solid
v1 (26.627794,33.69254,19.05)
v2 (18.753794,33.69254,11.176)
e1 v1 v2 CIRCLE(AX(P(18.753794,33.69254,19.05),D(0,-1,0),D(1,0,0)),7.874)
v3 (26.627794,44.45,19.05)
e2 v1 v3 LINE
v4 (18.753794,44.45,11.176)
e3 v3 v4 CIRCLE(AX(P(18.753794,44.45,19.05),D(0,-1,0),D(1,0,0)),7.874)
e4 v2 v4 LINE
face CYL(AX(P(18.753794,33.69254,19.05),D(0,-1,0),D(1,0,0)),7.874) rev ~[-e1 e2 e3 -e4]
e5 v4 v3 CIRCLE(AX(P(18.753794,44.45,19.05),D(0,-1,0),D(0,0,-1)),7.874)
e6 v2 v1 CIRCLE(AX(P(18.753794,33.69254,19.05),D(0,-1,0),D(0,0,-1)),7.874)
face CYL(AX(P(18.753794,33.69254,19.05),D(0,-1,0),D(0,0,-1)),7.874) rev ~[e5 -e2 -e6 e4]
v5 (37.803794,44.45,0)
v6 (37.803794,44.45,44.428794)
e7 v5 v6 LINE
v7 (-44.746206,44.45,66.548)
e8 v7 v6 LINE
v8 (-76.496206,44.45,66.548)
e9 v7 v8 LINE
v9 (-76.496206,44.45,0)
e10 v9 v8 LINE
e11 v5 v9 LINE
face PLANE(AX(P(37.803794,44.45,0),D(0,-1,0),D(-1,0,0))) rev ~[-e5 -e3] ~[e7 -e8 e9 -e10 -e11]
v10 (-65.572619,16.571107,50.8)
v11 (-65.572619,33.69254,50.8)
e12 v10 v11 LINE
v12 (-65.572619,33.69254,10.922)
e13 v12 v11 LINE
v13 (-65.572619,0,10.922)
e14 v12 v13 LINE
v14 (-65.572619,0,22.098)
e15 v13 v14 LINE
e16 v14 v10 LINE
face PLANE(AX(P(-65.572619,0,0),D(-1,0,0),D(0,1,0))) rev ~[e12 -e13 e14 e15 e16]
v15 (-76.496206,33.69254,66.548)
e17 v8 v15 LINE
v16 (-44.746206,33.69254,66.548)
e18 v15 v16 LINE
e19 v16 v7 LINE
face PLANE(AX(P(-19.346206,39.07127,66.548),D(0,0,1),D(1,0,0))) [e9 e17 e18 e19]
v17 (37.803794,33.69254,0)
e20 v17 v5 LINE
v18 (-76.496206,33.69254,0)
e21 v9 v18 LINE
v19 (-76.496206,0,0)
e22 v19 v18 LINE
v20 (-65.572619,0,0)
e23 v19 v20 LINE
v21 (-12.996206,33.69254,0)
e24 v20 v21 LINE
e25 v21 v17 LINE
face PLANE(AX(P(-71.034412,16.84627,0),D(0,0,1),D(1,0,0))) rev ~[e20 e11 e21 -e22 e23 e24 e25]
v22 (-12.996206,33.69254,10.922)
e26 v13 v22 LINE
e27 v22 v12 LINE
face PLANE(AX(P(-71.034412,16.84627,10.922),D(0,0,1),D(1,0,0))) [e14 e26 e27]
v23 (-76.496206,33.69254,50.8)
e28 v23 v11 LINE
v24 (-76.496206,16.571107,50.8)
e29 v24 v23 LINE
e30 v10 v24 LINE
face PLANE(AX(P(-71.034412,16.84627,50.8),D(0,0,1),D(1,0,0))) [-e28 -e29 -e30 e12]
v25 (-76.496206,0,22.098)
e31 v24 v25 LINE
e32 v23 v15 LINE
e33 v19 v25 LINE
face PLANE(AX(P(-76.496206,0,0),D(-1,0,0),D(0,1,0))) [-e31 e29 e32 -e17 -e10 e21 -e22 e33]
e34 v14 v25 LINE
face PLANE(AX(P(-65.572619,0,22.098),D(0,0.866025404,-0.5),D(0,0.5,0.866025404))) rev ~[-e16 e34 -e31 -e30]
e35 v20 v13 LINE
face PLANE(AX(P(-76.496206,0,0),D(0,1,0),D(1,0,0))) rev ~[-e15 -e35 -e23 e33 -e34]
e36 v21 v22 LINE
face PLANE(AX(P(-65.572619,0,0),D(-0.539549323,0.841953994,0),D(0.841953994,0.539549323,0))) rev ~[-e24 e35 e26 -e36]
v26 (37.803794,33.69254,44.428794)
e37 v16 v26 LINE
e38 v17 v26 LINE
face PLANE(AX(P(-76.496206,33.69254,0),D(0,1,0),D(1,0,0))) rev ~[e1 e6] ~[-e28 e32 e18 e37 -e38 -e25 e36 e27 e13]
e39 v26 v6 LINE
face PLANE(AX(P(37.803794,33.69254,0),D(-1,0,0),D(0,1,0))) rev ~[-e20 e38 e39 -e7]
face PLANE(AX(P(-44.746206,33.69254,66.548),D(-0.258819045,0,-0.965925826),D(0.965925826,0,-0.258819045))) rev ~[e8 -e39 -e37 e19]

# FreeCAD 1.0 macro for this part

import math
import FreeCAD as App
import Part
import Sketcher

V = App.Vector
Q = App.Units.Quantity


def add_polygon(sketch, points):
    """Adds a closed chain of lines whose ends are joined by coincident constraints."""
    first, n = sketch.GeometryCount, len(points)
    for a, b in zip(points, points[1:] + points[:1]):
        sketch.addGeometry(Part.LineSegment(App.Vector(*a, 0), App.Vector(*b, 0)), False)
    for i in range(n):
        sketch.addConstraint(Sketcher.Constraint("Coincident", first + i, 2, first + (i + 1) % n, 1))

doc = App.newDocument("Part")
params = doc.addObject("Spreadsheet::Sheet", "Params")
for row, (alias, value) in enumerate([
    ("sketch1_width", "4.5 in"),
    ("pad1_length", "2.62 in"),
    ("sketch2_width", "2.5 in"),
    ("pad2_length", "0.43 in"),
    ("sketch3_radius", "0.31 in"),
    ("pad3_length", "2 in"),
    ("sketch5_height", "1.13 in"),
    ("pocket2_length", "5 in"),
    ("sketch6_width", "3.25 in"),
    ("pocket3_length", "5 in"),
], start=1):
    params.set(f"A{row}", alias)
    params.set(f"B{row}", "=" + value)
    params.setAlias(f"B{row}", alias)

body = doc.addObject("PartDesign::Body", "Body")

sketch1 = body.newObject("Sketcher::SketchObject", "Sketch")
sketch1.AttachmentSupport = (doc.getObject("XY_Plane"), [""])
sketch1.MapMode = "FlatFace"
add_polygon(sketch1, [(38, 44), (-76, 44), (-76, 34), (38, 34)])
sketch1.addConstraint(Sketcher.Constraint("Horizontal", 0))
sketch1.addConstraint(Sketcher.Constraint("Vertical", 1))
sketch1.addConstraint(Sketcher.Constraint("Horizontal", 2))
sketch1.addConstraint(Sketcher.Constraint("Vertical", 3))
sketch1.addConstraint(Sketcher.Constraint("DistanceX", 0, 2, 0, 1, Q("4.5 in")))
sketch1.addConstraint(Sketcher.Constraint("DistanceY", -1, 1, 0, 2, Q("1.75 in")))
sketch1.addConstraint(Sketcher.Constraint("DistanceY", 1, 2, 1, 1, 10.75746))
sketch1.addConstraint(Sketcher.Constraint("DistanceX", 0, 2, -1, 1, 76.496206))
sketch1.setExpression("Constraints[8]", "Params.sketch1_width")
pad1 = body.newObject("PartDesign::Pad", "Pad")
pad1.Profile = sketch1
pad1.setExpression("Length", "Params.pad1_length")

sketch2 = body.newObject("Sketcher::SketchObject", "Sketch001")
sketch2.AttachmentSupport = (doc.getObject("XY_Plane"), [""])
sketch2.MapMode = "FlatFace"
add_polygon(sketch2, [(-76, 34), (-76, 0), (-66, 0), (-13, 34)])
sketch2.addConstraint(Sketcher.Constraint("Vertical", 0))
sketch2.addConstraint(Sketcher.Constraint("Horizontal", 1))
sketch2.addConstraint(Sketcher.Constraint("Horizontal", 3))
sketch2.addConstraint(Sketcher.Constraint("PointOnObject", 0, 2, -1))
sketch2.addConstraint(Sketcher.Constraint("DistanceX", 3, 2, 3, 1, Q("2.5 in")))
sketch2.addConstraint(Sketcher.Constraint("DistanceY", 0, 2, 0, 1, 33.69254))
sketch2.addConstraint(Sketcher.Constraint("Distance", 2, 62.445708))
sketch2.addConstraint(Sketcher.Constraint("DistanceX", 1, 2, -1, 1, 65.572619))
sketch2.setExpression("Constraints[8]", "Params.sketch2_width")
pad2 = body.newObject("PartDesign::Pad", "Pad001")
pad2.Profile = sketch2
pad2.setExpression("Length", "Params.pad2_length")

sketch3 = body.newObject("Sketcher::SketchObject", "Sketch002")
sketch3.AttachmentSupport = (doc.getObject("XZ_Plane"), [""])
sketch3.MapMode = "FlatFace"
sketch3.AttachmentOffset = App.Placement(V(0, 0, -33.69254), App.Rotation())
sketch3.addGeometry(Part.ArcOfCircle(Part.Circle(V(19, 19, 0), V(0, 0, 1), 8), math.radians(0), math.radians(270)), False)
sketch3.addGeometry(Part.ArcOfCircle(Part.Circle(V(19, 19, 0), V(0, 0, 1), 8), math.radians(-90), math.radians(0)), False)
sketch3.addConstraint(Sketcher.Constraint("Tangent", 0, 1, 1, 2))
sketch3.addConstraint(Sketcher.Constraint("Coincident", 1, 1, 0, 2))
sketch3.addConstraint(Sketcher.Constraint("Horizontal", 1, 3, 0, 1))
sketch3.addConstraint(Sketcher.Constraint("Vertical", 0, 3, 1, 1))
sketch3.addConstraint(Sketcher.Constraint("Radius", 0, Q("0.31 in")))
sketch3.addConstraint(Sketcher.Constraint("DistanceY", -1, 1, 0, 3, Q("0.75 in")))
sketch3.addConstraint(Sketcher.Constraint("DistanceX", -1, 1, 0, 3, 18.753794))
sketch3.setExpression("Constraints[4]", "Params.sketch3_radius")
pocket1 = body.newObject("PartDesign::Pocket", "Pocket")
pocket1.Profile = sketch3
pocket1.Type = "ThroughAll"

sketch4 = body.newObject("Sketcher::SketchObject", "Sketch003")
sketch4.AttachmentSupport = (doc.getObject("XY_Plane"), [""])
sketch4.MapMode = "FlatFace"
add_polygon(sketch4, [(-76, 34), (-76, 0), (-66, 0), (-66, 34)])
sketch4.addConstraint(Sketcher.Constraint("Vertical", 0))
sketch4.addConstraint(Sketcher.Constraint("Horizontal", 1))
sketch4.addConstraint(Sketcher.Constraint("Vertical", 2))
sketch4.addConstraint(Sketcher.Constraint("Horizontal", 3))
sketch4.addConstraint(Sketcher.Constraint("PointOnObject", 0, 2, -1))
sketch4.addConstraint(Sketcher.Constraint("DistanceY", 0, 2, 0, 1, 33.69254))
sketch4.addConstraint(Sketcher.Constraint("DistanceX", 1, 1, 1, 2, 10.923586))
sketch4.addConstraint(Sketcher.Constraint("DistanceX", 1, 2, -1, 1, 65.572619))
pad3 = body.newObject("PartDesign::Pad", "Pad002")
pad3.Profile = sketch4
pad3.setExpression("Length", "Params.pad3_length")

sketch5 = body.newObject("Sketcher::SketchObject", "Sketch004")
sketch5.AttachmentSupport = (doc.getObject("YZ_Plane"), [""])
sketch5.MapMode = "FlatFace"
sketch5.AttachmentOffset = App.Placement(V(0, 0, -65.572619), App.Rotation())
add_polygon(sketch5, [(0, 51), (0, 22), (17, 51)])
sketch5.addConstraint(Sketcher.Constraint("Vertical", 0))
sketch5.addConstraint(Sketcher.Constraint("Horizontal", 2))
sketch5.addConstraint(Sketcher.Constraint("PointOnObject", 0, 2, -2))
sketch5.addConstraint(Sketcher.Constraint("DistanceY", -1, 1, 1, 2, Q("2 in")))
sketch5.addConstraint(Sketcher.Constraint("Angle", 1, Q("60 deg")))
sketch5.addConstraint(Sketcher.Constraint("DistanceY", 0, 2, 0, 1, Q("1.13 in")))
sketch5.setExpression("Constraints[8]", "Params.sketch5_height")
pocket2 = body.newObject("PartDesign::Pocket", "Pocket001")
pocket2.Profile = sketch5
pocket2.setExpression("Length", "Params.pocket2_length")

sketch6 = body.newObject("Sketcher::SketchObject", "Sketch005")
sketch6.AttachmentSupport = (doc.getObject("XZ_Plane"), [""])
sketch6.MapMode = "FlatFace"
sketch6.AttachmentOffset = App.Placement(V(0, 0, -33.69254), App.Rotation())
add_polygon(sketch6, [(-45, 67), (38, 44), (38, 67)])
sketch6.addConstraint(Sketcher.Constraint("Vertical", 1))
sketch6.addConstraint(Sketcher.Constraint("Horizontal", 2))
sketch6.addConstraint(Sketcher.Constraint("Angle", 0, Q("-15 deg")))
sketch6.addConstraint(Sketcher.Constraint("DistanceX", 2, 2, 2, 1, Q("3.25 in")))
sketch6.addConstraint(Sketcher.Constraint("DistanceY", -1, 1, 1, 2, Q("2.62 in")))
sketch6.addConstraint(Sketcher.Constraint("DistanceX", -1, 1, 0, 2, 37.803794))
sketch6.setExpression("Constraints[6]", "Params.sketch6_width")
pocket3 = body.newObject("PartDesign::Pocket", "Pocket002")
pocket3.Profile = sketch6
pocket3.setExpression("Length", "Params.pocket3_length")

doc.recompute()
